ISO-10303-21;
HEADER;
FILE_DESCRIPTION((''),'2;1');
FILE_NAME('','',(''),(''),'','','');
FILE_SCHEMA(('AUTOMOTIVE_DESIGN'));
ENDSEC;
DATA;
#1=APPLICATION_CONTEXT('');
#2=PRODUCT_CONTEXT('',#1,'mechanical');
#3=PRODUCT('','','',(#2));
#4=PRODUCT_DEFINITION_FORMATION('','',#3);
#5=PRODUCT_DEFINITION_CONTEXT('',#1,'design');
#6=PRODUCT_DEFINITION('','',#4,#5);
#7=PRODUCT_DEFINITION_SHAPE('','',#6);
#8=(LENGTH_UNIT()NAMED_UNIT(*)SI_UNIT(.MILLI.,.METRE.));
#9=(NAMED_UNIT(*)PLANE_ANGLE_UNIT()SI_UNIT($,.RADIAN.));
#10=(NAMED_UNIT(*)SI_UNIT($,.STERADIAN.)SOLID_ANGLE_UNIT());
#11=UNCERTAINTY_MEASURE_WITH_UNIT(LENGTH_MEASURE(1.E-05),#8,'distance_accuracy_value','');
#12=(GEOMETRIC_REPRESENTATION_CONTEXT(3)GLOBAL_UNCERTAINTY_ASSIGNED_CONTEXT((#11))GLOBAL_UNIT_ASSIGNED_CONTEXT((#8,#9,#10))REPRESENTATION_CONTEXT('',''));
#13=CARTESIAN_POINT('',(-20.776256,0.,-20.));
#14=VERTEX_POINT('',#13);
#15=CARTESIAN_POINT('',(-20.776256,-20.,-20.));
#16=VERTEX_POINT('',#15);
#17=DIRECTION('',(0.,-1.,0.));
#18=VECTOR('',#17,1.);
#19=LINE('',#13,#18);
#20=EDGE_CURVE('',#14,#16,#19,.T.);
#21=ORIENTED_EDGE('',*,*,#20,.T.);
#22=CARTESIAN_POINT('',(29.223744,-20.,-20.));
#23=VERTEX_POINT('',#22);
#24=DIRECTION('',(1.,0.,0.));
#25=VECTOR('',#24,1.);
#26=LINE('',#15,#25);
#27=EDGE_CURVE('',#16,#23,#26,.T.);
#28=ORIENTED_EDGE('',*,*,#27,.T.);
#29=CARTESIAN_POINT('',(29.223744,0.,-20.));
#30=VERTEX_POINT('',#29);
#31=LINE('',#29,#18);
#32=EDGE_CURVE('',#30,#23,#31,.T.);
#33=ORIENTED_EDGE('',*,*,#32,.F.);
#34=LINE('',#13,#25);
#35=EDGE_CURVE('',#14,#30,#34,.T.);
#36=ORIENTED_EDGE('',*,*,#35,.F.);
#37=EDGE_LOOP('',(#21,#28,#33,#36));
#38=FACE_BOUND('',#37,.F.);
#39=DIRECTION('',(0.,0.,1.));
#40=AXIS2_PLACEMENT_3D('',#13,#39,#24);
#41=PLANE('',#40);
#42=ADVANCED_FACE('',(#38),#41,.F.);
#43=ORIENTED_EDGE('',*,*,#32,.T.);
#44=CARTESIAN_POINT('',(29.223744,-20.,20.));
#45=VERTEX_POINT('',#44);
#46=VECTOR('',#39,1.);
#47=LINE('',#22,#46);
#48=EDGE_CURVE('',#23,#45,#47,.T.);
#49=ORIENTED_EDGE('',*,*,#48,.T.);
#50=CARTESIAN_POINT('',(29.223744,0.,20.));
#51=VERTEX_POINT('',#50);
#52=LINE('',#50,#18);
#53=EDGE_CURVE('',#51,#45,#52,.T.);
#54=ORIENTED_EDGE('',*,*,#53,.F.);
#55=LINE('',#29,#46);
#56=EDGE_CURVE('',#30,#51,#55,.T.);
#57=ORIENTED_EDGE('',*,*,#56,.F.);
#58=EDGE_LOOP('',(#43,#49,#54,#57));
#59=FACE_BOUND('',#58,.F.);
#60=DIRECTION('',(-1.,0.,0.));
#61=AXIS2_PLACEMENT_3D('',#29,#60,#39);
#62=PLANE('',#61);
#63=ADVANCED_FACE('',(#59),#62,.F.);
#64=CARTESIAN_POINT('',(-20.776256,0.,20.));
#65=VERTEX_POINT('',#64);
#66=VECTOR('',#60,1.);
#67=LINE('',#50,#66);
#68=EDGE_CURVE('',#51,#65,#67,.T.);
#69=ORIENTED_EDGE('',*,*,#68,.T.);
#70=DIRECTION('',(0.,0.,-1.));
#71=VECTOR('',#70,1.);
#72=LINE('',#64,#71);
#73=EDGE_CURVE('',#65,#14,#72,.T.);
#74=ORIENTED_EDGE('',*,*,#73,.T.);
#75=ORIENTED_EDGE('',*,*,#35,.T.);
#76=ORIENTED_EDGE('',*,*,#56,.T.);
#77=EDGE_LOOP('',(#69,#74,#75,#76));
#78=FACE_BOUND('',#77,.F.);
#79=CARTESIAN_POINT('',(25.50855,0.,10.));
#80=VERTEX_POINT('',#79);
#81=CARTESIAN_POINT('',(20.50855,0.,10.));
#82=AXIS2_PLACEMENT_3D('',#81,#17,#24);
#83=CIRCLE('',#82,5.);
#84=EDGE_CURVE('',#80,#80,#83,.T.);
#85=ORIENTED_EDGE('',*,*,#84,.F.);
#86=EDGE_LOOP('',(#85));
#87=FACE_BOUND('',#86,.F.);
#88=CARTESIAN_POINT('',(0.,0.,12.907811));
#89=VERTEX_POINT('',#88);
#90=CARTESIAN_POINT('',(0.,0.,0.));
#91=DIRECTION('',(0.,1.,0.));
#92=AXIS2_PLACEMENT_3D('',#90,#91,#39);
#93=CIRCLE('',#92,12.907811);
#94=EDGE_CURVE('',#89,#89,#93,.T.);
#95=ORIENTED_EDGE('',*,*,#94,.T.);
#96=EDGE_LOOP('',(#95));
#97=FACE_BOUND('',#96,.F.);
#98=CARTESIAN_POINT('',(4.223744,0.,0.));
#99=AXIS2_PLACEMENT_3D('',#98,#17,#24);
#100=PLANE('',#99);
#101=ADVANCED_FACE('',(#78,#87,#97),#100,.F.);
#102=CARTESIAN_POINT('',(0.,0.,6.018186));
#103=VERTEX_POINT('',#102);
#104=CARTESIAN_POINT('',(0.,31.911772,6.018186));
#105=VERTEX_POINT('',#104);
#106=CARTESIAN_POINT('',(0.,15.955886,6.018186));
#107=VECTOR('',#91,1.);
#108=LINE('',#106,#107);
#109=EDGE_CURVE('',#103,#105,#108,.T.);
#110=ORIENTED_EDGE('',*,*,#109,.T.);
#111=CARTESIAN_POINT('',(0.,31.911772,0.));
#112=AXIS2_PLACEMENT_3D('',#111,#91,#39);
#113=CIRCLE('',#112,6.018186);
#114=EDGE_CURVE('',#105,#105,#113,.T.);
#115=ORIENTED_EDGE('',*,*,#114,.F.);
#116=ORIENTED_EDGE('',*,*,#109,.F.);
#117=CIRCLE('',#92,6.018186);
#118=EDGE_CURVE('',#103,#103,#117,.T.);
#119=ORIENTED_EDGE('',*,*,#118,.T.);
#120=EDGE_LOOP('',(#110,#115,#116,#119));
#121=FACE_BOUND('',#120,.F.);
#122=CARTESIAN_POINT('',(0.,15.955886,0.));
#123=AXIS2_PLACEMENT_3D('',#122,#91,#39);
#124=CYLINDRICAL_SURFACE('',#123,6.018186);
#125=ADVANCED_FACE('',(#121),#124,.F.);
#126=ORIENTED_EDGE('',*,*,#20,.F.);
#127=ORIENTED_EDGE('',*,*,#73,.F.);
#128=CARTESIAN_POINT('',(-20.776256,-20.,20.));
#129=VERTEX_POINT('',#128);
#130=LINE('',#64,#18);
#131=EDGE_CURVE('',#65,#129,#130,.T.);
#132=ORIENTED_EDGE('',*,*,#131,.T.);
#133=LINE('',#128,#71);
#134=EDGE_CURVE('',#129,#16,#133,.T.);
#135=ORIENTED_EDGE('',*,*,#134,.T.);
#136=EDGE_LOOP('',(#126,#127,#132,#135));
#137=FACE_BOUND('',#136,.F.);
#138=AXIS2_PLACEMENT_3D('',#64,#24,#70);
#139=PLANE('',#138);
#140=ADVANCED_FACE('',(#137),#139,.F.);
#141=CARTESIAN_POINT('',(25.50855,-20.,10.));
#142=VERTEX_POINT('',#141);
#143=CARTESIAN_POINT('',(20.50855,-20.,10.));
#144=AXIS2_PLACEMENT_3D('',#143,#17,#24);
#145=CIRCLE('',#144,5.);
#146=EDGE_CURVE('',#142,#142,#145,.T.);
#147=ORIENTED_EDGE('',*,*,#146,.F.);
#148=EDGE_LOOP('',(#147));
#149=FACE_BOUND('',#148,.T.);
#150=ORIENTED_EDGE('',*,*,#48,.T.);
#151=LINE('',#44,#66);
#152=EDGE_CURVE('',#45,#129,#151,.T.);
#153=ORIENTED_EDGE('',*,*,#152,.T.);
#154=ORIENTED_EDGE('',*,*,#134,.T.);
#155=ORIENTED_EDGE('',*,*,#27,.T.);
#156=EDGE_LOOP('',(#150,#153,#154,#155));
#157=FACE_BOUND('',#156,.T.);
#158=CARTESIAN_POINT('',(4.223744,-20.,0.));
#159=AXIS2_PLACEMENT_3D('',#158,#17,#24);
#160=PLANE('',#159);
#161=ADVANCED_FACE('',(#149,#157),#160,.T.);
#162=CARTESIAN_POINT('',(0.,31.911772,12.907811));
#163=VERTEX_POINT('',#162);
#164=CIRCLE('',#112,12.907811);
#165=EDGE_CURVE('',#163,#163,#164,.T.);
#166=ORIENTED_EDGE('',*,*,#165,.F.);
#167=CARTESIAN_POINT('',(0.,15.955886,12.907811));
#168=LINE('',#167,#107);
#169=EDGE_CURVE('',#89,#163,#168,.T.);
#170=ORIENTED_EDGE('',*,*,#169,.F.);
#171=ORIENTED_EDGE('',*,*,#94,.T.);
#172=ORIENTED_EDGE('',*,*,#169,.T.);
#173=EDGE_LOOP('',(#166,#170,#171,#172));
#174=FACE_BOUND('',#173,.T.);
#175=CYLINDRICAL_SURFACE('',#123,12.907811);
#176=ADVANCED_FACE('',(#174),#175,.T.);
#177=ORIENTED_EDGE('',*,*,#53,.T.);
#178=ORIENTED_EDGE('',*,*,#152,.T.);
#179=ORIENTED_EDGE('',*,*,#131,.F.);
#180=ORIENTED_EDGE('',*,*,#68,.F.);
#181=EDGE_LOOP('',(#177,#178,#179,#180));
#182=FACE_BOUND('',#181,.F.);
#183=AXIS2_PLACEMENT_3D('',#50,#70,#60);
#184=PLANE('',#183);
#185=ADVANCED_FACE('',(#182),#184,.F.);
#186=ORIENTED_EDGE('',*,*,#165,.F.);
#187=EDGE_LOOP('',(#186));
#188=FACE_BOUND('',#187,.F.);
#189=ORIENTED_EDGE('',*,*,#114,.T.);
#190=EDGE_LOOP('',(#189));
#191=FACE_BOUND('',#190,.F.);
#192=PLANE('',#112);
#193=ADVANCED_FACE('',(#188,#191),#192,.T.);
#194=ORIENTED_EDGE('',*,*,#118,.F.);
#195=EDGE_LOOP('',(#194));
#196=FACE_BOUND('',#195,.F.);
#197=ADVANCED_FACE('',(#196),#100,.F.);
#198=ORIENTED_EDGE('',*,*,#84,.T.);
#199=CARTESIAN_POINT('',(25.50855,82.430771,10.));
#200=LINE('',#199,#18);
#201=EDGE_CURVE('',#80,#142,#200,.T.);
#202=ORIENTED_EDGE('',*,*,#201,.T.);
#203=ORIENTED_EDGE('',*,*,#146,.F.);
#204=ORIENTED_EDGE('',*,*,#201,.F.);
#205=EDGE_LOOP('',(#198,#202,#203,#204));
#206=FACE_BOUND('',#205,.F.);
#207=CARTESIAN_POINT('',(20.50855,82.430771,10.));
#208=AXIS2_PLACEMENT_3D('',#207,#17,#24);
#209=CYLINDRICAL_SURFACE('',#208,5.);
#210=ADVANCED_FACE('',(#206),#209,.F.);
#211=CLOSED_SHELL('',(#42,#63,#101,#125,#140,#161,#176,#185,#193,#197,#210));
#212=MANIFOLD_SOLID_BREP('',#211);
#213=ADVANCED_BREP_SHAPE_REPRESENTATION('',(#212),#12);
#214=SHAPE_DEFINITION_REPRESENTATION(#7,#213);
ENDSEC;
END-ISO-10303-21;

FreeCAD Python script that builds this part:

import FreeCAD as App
import Part
import Sketcher
from FreeCAD import Vector


def add_polygon(sketch, points):
    """Adds a closed chain of lines whose ends are joined by coincident constraints."""
    first, n = sketch.GeometryCount, len(points)
    for a, b in zip(points, points[1:] + points[:1]):
        sketch.addGeometry(Part.LineSegment(App.Vector(*a, 0), App.Vector(*b, 0)), False)
    for i in range(n):
        sketch.addConstraint(Sketcher.Constraint("Coincident", first + i, 2, first + (i + 1) % n, 1))

doc = App.newDocument("Part")
params = doc.addObject("Spreadsheet::Sheet", "Params")
for row, (alias, value) in enumerate([
    ("sketch1_width", "50 mm"),
    ("sketch1_height", "40 mm"),
    ("pad1_length", "20 mm"),
    ("revolution_angle", "360 deg"),
    ("sketch3_diameter", "10 mm"),
    ("hole_diameter", "10 mm"),
], start=1):
    params.set(f"A{row}", alias)
    params.set(f"B{row}", "=" + value)
    params.setAlias(f"B{row}", alias)

body = doc.addObject("PartDesign::Body", "Body")

# Sketch on XZ plane
sketch1 = body.newObject("Sketcher::SketchObject", "Sketch")
sketch1.AttachmentSupport = (doc.getObject("XZ_Plane"), [""])
sketch1.MapMode = "FlatFace"
add_polygon(sketch1, [(-21, 20), (-21, -20), (29, -20), (29, 20)])  # lines 0-3
sketch1.addConstraint([
    Sketcher.Constraint("Vertical", 0),
    Sketcher.Constraint("Horizontal", 1),
    Sketcher.Constraint("Vertical", 2),
    Sketcher.Constraint("Horizontal", 3),
    Sketcher.Constraint("DistanceX", 1, 1, 1, 2, 50.0),
    Sketcher.Constraint("DistanceY", 0, 2, 0, 1, 40.0),
    Sketcher.Constraint("DistanceY", 0, 2, -1, 1, 20.0),
    Sketcher.Constraint("DistanceX", 0, 2, -1, 1, 20.776256),
])
sketch1.setExpression("Constraints[8]", "Params.sketch1_width")
sketch1.setExpression("Constraints[9]", "Params.sketch1_height")
pad1 = body.newObject("PartDesign::Pad", "Pad")
pad1.Profile = sketch1
pad1.setExpression("Length", "Params.pad1_length")

# Sketch on YZ plane
sketch2 = body.newObject("Sketcher::SketchObject", "Sketch001")
sketch2.AttachmentSupport = (doc.getObject("YZ_Plane"), [""])
sketch2.MapMode = "FlatFace"
add_polygon(sketch2, [(0, 13), (0, 6), (32, 6), (32, 13)])  # lines 0-3
sketch2.addConstraint([
    Sketcher.Constraint("Vertical", 0),
    Sketcher.Constraint("Horizontal", 1),
    Sketcher.Constraint("Vertical", 2),
    Sketcher.Constraint("Horizontal", 3),
    Sketcher.Constraint("PointOnObject", 0, 2, -2),
    Sketcher.Constraint("DistanceX", 1, 1, 1, 2, 31.911772),
    Sketcher.Constraint("DistanceY", 0, 2, 0, 1, 6.889625),
    Sketcher.Constraint("DistanceY", -1, 1, 2, 2, 12.907811),
])
revolution = body.newObject("PartDesign::Revolution", "Revolution")
revolution.Profile = sketch2
revolution.ReferenceAxis = (sketch2, ["H_Axis"])
revolution.setExpression("Angle", "Params.revolution_angle")

# Sketch on XZ plane
sketch3 = body.newObject("Sketcher::SketchObject", "Sketch002")
sketch3.AttachmentSupport = (doc.getObject("XZ_Plane"), [""])
sketch3.MapMode = "FlatFace"
sketch3.addGeometry(Part.Circle(Vector(21, 10, 0), Vector(0, 0, 1), 5), False)
sketch3.addConstraint([
    Sketcher.Constraint("Diameter", 0, 10.0),
    Sketcher.Constraint("DistanceY", -1, 1, 0, 3, 10.0),
    Sketcher.Constraint("DistanceX", -1, 1, 0, 3, 20.50855),
])
sketch3.setExpression("Constraints[0]", "Params.sketch3_diameter")
doc.recompute()
hole = body.newObject("PartDesign::Hole", "Hole")
hole.Profile = sketch3
hole.ThreadType = "None"
hole.setExpression("Diameter", "Params.hole_diameter")
hole.DepthType = "ThroughAll"
hole.Reversed = True

doc.recompute()
